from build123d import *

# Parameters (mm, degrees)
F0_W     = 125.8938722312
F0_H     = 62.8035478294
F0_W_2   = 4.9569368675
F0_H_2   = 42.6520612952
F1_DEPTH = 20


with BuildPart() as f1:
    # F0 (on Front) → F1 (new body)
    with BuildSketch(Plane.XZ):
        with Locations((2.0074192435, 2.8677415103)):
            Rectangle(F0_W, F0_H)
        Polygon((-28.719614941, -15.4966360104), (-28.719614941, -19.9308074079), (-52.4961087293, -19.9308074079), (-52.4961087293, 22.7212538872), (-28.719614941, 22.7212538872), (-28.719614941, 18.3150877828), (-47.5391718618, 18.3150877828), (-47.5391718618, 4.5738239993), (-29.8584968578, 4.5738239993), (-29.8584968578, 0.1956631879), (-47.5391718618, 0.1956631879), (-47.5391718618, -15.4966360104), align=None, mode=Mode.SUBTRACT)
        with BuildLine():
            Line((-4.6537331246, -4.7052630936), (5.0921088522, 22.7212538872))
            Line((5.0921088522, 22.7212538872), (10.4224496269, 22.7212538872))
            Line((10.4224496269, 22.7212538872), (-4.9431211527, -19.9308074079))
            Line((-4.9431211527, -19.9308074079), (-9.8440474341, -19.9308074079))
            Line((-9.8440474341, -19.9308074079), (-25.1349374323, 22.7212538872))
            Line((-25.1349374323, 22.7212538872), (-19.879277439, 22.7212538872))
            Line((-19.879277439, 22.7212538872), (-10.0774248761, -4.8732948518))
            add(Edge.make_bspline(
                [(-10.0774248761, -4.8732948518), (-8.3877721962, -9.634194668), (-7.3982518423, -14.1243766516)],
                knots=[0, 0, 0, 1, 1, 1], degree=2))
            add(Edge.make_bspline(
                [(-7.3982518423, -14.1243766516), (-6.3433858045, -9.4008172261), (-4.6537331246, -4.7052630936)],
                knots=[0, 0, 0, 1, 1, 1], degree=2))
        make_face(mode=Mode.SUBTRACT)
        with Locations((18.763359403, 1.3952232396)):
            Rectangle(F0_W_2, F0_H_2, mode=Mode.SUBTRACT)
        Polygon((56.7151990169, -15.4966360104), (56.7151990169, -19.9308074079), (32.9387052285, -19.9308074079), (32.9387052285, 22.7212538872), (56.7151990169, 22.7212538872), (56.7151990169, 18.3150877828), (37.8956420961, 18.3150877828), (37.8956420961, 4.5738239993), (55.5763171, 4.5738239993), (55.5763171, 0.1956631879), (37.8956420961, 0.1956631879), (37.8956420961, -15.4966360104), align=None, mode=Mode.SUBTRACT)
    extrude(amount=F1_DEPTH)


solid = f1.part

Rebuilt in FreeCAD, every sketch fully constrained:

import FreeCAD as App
import Part
import Sketcher
from FreeCAD import Vector


def add_polygon(sketch, points):
    """Adds a closed chain of lines whose ends are joined by coincident constraints."""
    first, n = sketch.GeometryCount, len(points)
    for a, b in zip(points, points[1:] + points[:1]):
        sketch.addGeometry(Part.LineSegment(App.Vector(*a, 0), App.Vector(*b, 0)), False)
    for i in range(n):
        sketch.addConstraint(Sketcher.Constraint("Coincident", first + i, 2, first + (i + 1) % n, 1))

doc = App.newDocument("Part")
body = doc.addObject("PartDesign::Body", "Body")

# Sketch on XZ plane
sketch1 = body.newObject("Sketcher::SketchObject", "Sketch")
sketch1.AttachmentSupport = (doc.getObject("XZ_Plane"), [""])
sketch1.MapMode = "FlatFace"
add_polygon(sketch1, [(-60.939517, 34.269515), (-60.939517, -28.534032), (64.954355, -28.534032), (64.954355, 34.269515)])  # lines 0-3
add_polygon(sketch1, [(-47.539172, -15.496636), (-28.719615, -15.496636), (-28.719615, -19.930807), (-52.496109, -19.930807), (-52.496109, 22.721254), (-28.719615, 22.721254), (-28.719615, 18.315088), (-47.539172, 18.315088), (-47.539172, 4.573824), (-29.858497, 4.573824), (-29.858497, 0.195663), (-47.539172, 0.195663)])  # lines 4-15
sketch1.addGeometry(Part.BSplineCurve([Vector(-7.398252, -14.124377, 0), Vector(-6.343386, -9.400817, 0), Vector(-4.653733, -4.705263, 0)], [3, 3], [0, 1], False, 2, [1, 1, 1], False), False)  # 16
sketch1.addGeometry(Part.LineSegment(Vector(-4.653733, -4.705263, 0), Vector(5.092109, 22.721254, 0)), False)  # 17
sketch1.addGeometry(Part.LineSegment(Vector(5.092109, 22.721254, 0), Vector(10.42245, 22.721254, 0)), False)  # 18
sketch1.addGeometry(Part.LineSegment(Vector(10.42245, 22.721254, 0), Vector(-4.943121, -19.930807, 0)), False)  # 19
sketch1.addGeometry(Part.LineSegment(Vector(-4.943121, -19.930807, 0), Vector(-9.844047, -19.930807, 0)), False)  # 20
sketch1.addGeometry(Part.LineSegment(Vector(-9.844047, -19.930807, 0), Vector(-25.134937, 22.721254, 0)), False)  # 21
sketch1.addGeometry(Part.LineSegment(Vector(-25.134937, 22.721254, 0), Vector(-19.879277, 22.721254, 0)), False)  # 22
sketch1.addGeometry(Part.LineSegment(Vector(-19.879277, 22.721254, 0), Vector(-10.077425, -4.873295, 0)), False)  # 23
sketch1.addGeometry(Part.BSplineCurve([Vector(-10.077425, -4.873295, 0), Vector(-8.387772, -9.634195, 0), Vector(-7.398252, -14.124377, 0)], [3, 3], [0, 1], False, 2, [1, 1, 1], False), False)  # 24
add_polygon(sketch1, [(21.241828, -19.930807), (16.284891, -19.930807), (16.284891, 22.721254), (21.241828, 22.721254)])  # lines 25-28
add_polygon(sketch1, [(37.895642, -15.496636), (56.715199, -15.496636), (56.715199, -19.930807), (32.938705, -19.930807), (32.938705, 22.721254), (56.715199, 22.721254), (56.715199, 18.315088), (37.895642, 18.315088), (37.895642, 4.573824), (55.576317, 4.573824), (55.576317, 0.195663), (37.895642, 0.195663)])  # lines 29-40
sketch1.addConstraint([
    Sketcher.Constraint("Block", 16),
    Sketcher.Constraint("Block", 24),
    Sketcher.Constraint("Coincident", 16, 2, 17, 1),
    Sketcher.Constraint("Coincident", 17, 2, 18, 1),
    Sketcher.Constraint("Coincident", 18, 2, 19, 1),
    Sketcher.Constraint("Coincident", 19, 2, 20, 1),
    Sketcher.Constraint("Coincident", 20, 2, 21, 1),
    Sketcher.Constraint("Coincident", 21, 2, 22, 1),
    Sketcher.Constraint("Coincident", 22, 2, 23, 1),
    Sketcher.Constraint("Coincident", 23, 2, 24, 1),
    Sketcher.Constraint("Vertical", 0),
    Sketcher.Constraint("Horizontal", 1),
    Sketcher.Constraint("Vertical", 2),
    Sketcher.Constraint("Horizontal", 3),
    Sketcher.Constraint("Horizontal", 4),
    Sketcher.Constraint("Vertical", 5),
    Sketcher.Constraint("Horizontal", 6),
    Sketcher.Constraint("Vertical", 7),
    Sketcher.Constraint("Horizontal", 8),
    Sketcher.Constraint("Vertical", 9),
    Sketcher.Constraint("Horizontal", 10),
    Sketcher.Constraint("Vertical", 11),
    Sketcher.Constraint("Horizontal", 12),
    Sketcher.Constraint("Vertical", 13),
    Sketcher.Constraint("Horizontal", 14),
    Sketcher.Constraint("Vertical", 15),
    Sketcher.Constraint("Horizontal", 18),
    Sketcher.Constraint("Horizontal", 20),
    Sketcher.Constraint("Horizontal", 22),
    Sketcher.Constraint("Horizontal", 25),
    Sketcher.Constraint("Vertical", 26),
    Sketcher.Constraint("Horizontal", 27),
    Sketcher.Constraint("Vertical", 28),
    Sketcher.Constraint("Horizontal", 29),
    Sketcher.Constraint("Vertical", 30),
    Sketcher.Constraint("Horizontal", 31),
    Sketcher.Constraint("Vertical", 32),
    Sketcher.Constraint("Horizontal", 33),
    Sketcher.Constraint("Vertical", 34),
    Sketcher.Constraint("Horizontal", 35),
    Sketcher.Constraint("Vertical", 36),
    Sketcher.Constraint("Horizontal", 37),
    Sketcher.Constraint("Vertical", 38),
    Sketcher.Constraint("Horizontal", 39),
    Sketcher.Constraint("Vertical", 40),
    Sketcher.Constraint("Horizontal", 8, 2, 17, 2),
    Sketcher.Constraint("Horizontal", 6, 2, 19, 2),
    Sketcher.Constraint("Horizontal", 18, 2, 21, 2),
    Sketcher.Constraint("Horizontal", 20, 2, 25, 2),
    Sketcher.Constraint("Horizontal", 22, 2, 26, 2),
    Sketcher.Constraint("Horizontal", 15, 2, 29, 2),
    Sketcher.Constraint("Horizontal", 28, 2, 30, 2),
    Sketcher.Constraint("Horizontal", 27, 2, 32, 2),
    Sketcher.Constraint("Horizontal", 10, 2, 34, 2),
    Sketcher.Constraint("Horizontal", 12, 2, 36, 2),
    Sketcher.Constraint("Horizontal", 14, 2, 38, 2),
    Sketcher.Constraint("Vertical", 5, 2, 8, 2),
    Sketcher.Constraint("Vertical", 11, 2, 14, 2),
    Sketcher.Constraint("Vertical", 30, 2, 33, 2),
    Sketcher.Constraint("Vertical", 36, 2, 39, 2),
    Sketcher.Constraint("Equal", 10, 29),
    Sketcher.Constraint("Equal", 8, 31),
    Sketcher.Constraint("Equal", 14, 37),
    Sketcher.Constraint("DistanceY", 15, 2, 15, 1, 15.692299),
    Sketcher.Constraint("DistanceX", 18, 1, 18, 2, 5.330341),
    Sketcher.Constraint("DistanceX", 22, 1, 22, 2, 5.25566),
    Sketcher.Constraint("DistanceY", 5, 2, 5, 1, 4.434171),
    Sketcher.Constraint("DistanceY", 7, 1, 7, 2, 42.652061),
    Sketcher.Constraint("DistanceY", 13, 2, 13, 1, 4.378161),
    Sketcher.Constraint("DistanceX", -1, 1, 29, 2, 56.715199),
    Sketcher.Constraint("DistanceX", 0, 2, 4, 2, 32.219902),
    Sketcher.Constraint("Distance", 17, 29.106619),
    Sketcher.Constraint("Distance", 21, 45.31015),
    Sketcher.Constraint("DistanceX", 1, 1, 1, 2, 125.893872),
    Sketcher.Constraint("DistanceX", 4, 1, 4, 2, 18.819557),
    Sketcher.Constraint("DistanceX", 6, 2, 6, 1, 23.776494),
    Sketcher.Constraint("DistanceX", 12, 1, 12, 2, 17.680675),
    Sketcher.Constraint("DistanceX", 20, 2, 20, 1, 4.900926),
    Sketcher.Constraint("DistanceX", 25, 2, 25, 1, 4.956937),
    Sketcher.Constraint("DistanceY", 0, 2, 0, 1, 62.803548),
    Sketcher.Constraint("DistanceY", 9, 2, 9, 1, 4.406166),
    Sketcher.Constraint("DistanceX", 6, 2, -1, 1, 52.496109),
    Sketcher.Constraint("DistanceX", -1, 1, 17, 2, 5.092109),
    Sketcher.Constraint("DistanceX", 19, 2, -1, 1, 4.943121),
    Sketcher.Constraint("DistanceX", -1, 1, 25, 2, 16.284891),
    Sketcher.Constraint("DistanceY", 4, 2, 3, 2, 49.766151),
])
pad1 = body.newObject("PartDesign::Pad", "Pad")
pad1.Profile = sketch1
pad1.Length = 20

doc.recompute()
